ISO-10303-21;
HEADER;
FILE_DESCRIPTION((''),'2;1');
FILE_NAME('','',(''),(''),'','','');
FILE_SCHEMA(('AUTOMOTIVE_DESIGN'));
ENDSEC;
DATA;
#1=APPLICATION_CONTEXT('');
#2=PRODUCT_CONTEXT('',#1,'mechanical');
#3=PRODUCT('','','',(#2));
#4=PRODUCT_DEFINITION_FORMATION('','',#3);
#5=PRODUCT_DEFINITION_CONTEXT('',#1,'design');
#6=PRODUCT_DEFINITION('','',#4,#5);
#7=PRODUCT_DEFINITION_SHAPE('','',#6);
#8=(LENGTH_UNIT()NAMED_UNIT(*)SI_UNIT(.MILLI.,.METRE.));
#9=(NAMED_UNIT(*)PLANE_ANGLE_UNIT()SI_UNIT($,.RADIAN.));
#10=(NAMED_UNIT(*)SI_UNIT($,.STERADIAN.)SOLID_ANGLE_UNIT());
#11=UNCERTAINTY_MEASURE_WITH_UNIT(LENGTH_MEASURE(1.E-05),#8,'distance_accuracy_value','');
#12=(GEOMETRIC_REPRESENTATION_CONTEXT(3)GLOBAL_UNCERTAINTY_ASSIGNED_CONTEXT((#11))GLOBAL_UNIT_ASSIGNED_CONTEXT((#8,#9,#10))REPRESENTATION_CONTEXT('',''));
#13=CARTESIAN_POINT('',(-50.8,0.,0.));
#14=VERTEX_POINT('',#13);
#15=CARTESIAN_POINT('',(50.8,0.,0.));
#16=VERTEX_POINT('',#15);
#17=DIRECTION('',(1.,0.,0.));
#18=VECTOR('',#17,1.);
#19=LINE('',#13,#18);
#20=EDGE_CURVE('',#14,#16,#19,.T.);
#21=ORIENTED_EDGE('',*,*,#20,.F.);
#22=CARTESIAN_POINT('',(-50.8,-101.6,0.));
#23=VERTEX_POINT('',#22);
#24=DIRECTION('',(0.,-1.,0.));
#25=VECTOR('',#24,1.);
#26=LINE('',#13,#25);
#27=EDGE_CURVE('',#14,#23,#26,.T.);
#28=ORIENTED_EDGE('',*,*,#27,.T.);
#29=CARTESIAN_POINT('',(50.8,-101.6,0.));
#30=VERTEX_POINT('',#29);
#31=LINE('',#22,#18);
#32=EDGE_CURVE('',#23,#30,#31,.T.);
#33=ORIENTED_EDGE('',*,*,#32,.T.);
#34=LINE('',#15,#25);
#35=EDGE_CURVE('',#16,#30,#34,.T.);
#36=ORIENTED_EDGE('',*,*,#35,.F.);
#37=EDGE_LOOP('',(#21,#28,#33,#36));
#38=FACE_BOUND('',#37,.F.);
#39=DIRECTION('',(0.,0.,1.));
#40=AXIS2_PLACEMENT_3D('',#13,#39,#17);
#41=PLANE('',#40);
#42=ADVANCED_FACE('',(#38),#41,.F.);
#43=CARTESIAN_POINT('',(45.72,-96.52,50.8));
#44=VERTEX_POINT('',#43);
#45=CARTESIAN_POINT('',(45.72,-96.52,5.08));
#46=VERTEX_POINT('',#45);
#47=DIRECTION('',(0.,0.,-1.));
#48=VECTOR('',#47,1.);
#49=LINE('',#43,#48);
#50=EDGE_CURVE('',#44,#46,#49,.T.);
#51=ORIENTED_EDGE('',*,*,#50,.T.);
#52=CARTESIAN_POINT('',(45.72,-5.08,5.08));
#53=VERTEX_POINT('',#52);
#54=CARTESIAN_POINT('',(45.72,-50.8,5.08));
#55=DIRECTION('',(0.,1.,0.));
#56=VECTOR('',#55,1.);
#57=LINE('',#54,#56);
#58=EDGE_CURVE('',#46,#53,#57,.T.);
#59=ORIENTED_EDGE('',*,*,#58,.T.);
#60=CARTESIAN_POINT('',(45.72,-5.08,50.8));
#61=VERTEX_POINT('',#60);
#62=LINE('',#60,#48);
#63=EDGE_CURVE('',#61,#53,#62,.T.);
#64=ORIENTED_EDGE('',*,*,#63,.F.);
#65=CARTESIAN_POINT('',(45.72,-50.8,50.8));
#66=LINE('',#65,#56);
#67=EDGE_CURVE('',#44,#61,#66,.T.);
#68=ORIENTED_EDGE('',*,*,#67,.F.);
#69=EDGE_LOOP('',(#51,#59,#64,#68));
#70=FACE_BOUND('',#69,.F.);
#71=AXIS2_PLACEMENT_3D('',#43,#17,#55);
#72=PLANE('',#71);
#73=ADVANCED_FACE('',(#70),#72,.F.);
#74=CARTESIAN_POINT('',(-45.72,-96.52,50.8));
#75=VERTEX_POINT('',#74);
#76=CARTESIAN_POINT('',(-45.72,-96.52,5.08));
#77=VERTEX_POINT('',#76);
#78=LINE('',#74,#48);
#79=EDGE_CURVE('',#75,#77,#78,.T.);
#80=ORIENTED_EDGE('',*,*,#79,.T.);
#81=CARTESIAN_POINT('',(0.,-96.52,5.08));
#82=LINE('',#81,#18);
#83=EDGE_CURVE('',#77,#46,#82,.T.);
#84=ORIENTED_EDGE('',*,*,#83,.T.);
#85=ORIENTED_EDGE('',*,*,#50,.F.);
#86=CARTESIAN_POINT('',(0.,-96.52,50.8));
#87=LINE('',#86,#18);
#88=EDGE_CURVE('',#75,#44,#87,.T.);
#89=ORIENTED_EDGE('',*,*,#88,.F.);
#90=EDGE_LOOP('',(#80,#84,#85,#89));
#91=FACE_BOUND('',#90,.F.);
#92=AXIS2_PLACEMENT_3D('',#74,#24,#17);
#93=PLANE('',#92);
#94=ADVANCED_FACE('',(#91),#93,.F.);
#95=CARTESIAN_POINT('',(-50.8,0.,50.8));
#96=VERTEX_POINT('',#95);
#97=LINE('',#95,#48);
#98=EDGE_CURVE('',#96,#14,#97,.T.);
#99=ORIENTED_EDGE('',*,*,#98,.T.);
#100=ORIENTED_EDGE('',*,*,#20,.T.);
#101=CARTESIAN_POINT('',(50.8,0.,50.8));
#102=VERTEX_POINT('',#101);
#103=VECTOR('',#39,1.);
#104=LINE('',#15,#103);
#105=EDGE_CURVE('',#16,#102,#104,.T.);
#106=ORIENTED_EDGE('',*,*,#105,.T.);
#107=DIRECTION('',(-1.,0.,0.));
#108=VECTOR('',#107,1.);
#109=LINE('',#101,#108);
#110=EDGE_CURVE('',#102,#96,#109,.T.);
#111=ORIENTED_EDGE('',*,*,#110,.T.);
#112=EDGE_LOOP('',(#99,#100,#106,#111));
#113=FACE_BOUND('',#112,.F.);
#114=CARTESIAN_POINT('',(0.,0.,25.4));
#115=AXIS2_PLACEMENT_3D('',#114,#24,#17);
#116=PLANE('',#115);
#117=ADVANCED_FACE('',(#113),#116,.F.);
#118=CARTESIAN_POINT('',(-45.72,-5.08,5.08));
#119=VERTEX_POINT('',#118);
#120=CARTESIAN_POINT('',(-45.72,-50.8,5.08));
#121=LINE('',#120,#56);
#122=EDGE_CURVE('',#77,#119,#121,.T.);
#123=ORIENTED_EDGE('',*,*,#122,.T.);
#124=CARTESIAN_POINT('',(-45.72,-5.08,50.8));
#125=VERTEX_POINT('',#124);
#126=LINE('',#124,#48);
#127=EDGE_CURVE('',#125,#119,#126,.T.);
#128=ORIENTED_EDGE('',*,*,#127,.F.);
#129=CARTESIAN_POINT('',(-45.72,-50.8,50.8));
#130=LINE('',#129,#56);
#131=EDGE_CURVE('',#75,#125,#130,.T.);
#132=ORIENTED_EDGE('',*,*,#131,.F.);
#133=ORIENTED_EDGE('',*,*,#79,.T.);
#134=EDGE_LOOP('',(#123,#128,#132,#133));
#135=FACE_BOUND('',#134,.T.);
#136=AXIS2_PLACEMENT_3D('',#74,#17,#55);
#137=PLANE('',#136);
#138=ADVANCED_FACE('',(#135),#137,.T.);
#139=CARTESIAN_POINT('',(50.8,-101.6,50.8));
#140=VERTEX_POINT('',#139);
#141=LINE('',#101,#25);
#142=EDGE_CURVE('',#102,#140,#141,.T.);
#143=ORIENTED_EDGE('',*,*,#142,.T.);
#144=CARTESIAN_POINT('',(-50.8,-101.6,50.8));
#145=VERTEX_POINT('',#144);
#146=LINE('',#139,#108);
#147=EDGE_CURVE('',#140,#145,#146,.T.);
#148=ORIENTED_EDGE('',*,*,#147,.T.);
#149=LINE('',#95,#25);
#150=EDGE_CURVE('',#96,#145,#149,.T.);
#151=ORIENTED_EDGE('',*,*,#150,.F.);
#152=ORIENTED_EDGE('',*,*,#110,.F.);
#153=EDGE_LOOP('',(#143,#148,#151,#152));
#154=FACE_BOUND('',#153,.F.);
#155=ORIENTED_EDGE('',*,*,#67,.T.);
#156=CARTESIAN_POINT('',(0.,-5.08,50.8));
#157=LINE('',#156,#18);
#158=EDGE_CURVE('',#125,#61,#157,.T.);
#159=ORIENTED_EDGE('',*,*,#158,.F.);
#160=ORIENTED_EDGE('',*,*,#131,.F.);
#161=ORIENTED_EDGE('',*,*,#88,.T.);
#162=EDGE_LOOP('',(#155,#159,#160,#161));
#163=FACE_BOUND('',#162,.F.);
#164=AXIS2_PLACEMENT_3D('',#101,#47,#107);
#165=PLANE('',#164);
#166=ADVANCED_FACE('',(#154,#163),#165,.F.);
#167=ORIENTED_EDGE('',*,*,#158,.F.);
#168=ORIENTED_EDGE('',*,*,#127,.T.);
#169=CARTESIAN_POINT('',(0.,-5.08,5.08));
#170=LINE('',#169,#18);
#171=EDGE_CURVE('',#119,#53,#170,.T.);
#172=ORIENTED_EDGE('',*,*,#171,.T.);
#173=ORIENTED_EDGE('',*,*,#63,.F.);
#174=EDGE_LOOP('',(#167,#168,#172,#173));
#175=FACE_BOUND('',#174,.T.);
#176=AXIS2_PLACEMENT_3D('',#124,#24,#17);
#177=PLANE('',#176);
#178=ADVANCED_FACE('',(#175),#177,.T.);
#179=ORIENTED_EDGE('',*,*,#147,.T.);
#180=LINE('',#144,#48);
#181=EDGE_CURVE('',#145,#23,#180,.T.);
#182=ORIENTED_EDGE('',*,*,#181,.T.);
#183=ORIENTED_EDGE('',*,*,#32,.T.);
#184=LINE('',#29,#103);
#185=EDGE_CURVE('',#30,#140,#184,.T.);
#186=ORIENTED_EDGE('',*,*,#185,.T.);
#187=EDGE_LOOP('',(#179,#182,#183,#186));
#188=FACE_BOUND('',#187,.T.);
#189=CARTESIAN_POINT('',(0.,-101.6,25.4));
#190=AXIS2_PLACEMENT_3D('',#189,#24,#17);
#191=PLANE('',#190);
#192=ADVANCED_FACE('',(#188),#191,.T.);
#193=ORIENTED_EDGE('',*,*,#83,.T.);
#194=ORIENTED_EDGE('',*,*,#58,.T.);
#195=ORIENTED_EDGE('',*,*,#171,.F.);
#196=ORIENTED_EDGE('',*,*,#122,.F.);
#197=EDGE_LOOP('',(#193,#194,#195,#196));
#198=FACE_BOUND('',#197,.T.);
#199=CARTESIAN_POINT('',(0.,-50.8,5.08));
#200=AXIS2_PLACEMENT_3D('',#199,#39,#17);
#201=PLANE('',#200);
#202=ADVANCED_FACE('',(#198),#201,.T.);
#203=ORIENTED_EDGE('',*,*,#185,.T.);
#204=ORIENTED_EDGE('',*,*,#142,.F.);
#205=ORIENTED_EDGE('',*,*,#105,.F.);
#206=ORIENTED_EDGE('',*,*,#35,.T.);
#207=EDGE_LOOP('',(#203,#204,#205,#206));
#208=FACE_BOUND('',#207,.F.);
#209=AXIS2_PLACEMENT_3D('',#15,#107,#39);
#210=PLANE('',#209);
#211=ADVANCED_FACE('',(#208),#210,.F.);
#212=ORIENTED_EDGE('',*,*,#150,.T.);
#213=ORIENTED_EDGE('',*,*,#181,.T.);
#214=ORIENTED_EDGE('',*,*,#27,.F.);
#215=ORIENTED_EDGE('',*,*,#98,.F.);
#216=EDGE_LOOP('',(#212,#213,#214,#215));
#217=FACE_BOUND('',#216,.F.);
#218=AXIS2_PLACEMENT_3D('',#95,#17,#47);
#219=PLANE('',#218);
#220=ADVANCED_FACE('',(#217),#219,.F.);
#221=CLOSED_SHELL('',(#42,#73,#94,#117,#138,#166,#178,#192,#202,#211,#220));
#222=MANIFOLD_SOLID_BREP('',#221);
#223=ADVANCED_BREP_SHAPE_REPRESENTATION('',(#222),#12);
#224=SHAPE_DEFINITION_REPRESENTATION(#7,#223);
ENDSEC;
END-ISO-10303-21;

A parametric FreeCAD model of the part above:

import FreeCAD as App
import Part
import Sketcher
Q = App.Units.Quantity


def add_polygon(sketch, points):
    """Adds a closed chain of lines whose ends are joined by coincident constraints."""
    first, n = sketch.GeometryCount, len(points)
    for a, b in zip(points, points[1:] + points[:1]):
        sketch.addGeometry(Part.LineSegment(App.Vector(*a, 0), App.Vector(*b, 0)), False)
    for i in range(n):
        sketch.addConstraint(Sketcher.Constraint("Coincident", first + i, 2, first + (i + 1) % n, 1))

doc = App.newDocument("Part")
params = doc.addObject("Spreadsheet::Sheet", "Params")
for row, (alias, value) in enumerate([
    ("sketch1_width", "4 in"),
    ("sketch1_height", "2 in"),
    ("pad1_length", "4 in"),
    ("sketch2_width", "3.6 in"),
    ("pocket1_length", "1.8 in"),
], start=1):
    params.set(f"A{row}", alias)
    params.set(f"B{row}", "=" + value)
    params.setAlias(f"B{row}", alias)

body = doc.addObject("PartDesign::Body", "Body")

# Sketch on XZ plane
sketch1 = body.newObject("Sketcher::SketchObject", "Sketch")
sketch1.AttachmentSupport = (doc.getObject("XZ_Plane"), [""])
sketch1.MapMode = "FlatFace"
add_polygon(sketch1, [(-51, 0), (51, 0), (51, 51), (-51, 51)])  # lines 0-3
sketch1.addConstraint([
    Sketcher.Constraint("Horizontal", 0),
    Sketcher.Constraint("Vertical", 1),
    Sketcher.Constraint("Horizontal", 2),
    Sketcher.Constraint("Vertical", 3),
    Sketcher.Constraint("Symmetric", 0, 2, 3, 2, -1, 1),
    Sketcher.Constraint("DistanceX", 0, 1, 0, 2, Q("4 in")),
    Sketcher.Constraint("DistanceY", 1, 1, 1, 2, Q("2 in")),
])
sketch1.setExpression("Constraints[9]", "Params.sketch1_width")
sketch1.setExpression("Constraints[10]", "Params.sketch1_height")
pad1 = body.newObject("PartDesign::Pad", "Pad")
pad1.Profile = sketch1
pad1.setExpression("Length", "Params.pad1_length")

# Sketch on XY plane
sketch2 = body.newObject("Sketcher::SketchObject", "Sketch001")
sketch2.AttachmentSupport = (doc.getObject("XY_Plane"), [""])
sketch2.MapMode = "FlatFace"
sketch2.AttachmentOffset = App.Placement(App.Vector(0, 0, 2 * 25.4), App.Rotation())
add_polygon(sketch2, [(-46, -5), (-46, -97), (46, -97), (46, -5)])  # lines 0-3
sketch2.addConstraint([
    Sketcher.Constraint("Vertical", 0),
    Sketcher.Constraint("Horizontal", 1),
    Sketcher.Constraint("Vertical", 2),
    Sketcher.Constraint("Horizontal", 3),
    Sketcher.Constraint("Equal", 3, 0),
    Sketcher.Constraint("DistanceX", 1, 1, 1, 2, Q("3.6 in")),
    Sketcher.Constraint("DistanceX", 0, 2, -1, 1, Q("1.8 in")),
    Sketcher.Constraint("DistanceY", 0, 2, -1, 1, Q("3.8 in")),
])
sketch2.setExpression("Constraints[9]", "Params.sketch2_width")
pocket1 = body.newObject("PartDesign::Pocket", "Pocket")
pocket1.Profile = sketch2
pocket1.setExpression("Length", "Params.pocket1_length")

doc.recompute()
